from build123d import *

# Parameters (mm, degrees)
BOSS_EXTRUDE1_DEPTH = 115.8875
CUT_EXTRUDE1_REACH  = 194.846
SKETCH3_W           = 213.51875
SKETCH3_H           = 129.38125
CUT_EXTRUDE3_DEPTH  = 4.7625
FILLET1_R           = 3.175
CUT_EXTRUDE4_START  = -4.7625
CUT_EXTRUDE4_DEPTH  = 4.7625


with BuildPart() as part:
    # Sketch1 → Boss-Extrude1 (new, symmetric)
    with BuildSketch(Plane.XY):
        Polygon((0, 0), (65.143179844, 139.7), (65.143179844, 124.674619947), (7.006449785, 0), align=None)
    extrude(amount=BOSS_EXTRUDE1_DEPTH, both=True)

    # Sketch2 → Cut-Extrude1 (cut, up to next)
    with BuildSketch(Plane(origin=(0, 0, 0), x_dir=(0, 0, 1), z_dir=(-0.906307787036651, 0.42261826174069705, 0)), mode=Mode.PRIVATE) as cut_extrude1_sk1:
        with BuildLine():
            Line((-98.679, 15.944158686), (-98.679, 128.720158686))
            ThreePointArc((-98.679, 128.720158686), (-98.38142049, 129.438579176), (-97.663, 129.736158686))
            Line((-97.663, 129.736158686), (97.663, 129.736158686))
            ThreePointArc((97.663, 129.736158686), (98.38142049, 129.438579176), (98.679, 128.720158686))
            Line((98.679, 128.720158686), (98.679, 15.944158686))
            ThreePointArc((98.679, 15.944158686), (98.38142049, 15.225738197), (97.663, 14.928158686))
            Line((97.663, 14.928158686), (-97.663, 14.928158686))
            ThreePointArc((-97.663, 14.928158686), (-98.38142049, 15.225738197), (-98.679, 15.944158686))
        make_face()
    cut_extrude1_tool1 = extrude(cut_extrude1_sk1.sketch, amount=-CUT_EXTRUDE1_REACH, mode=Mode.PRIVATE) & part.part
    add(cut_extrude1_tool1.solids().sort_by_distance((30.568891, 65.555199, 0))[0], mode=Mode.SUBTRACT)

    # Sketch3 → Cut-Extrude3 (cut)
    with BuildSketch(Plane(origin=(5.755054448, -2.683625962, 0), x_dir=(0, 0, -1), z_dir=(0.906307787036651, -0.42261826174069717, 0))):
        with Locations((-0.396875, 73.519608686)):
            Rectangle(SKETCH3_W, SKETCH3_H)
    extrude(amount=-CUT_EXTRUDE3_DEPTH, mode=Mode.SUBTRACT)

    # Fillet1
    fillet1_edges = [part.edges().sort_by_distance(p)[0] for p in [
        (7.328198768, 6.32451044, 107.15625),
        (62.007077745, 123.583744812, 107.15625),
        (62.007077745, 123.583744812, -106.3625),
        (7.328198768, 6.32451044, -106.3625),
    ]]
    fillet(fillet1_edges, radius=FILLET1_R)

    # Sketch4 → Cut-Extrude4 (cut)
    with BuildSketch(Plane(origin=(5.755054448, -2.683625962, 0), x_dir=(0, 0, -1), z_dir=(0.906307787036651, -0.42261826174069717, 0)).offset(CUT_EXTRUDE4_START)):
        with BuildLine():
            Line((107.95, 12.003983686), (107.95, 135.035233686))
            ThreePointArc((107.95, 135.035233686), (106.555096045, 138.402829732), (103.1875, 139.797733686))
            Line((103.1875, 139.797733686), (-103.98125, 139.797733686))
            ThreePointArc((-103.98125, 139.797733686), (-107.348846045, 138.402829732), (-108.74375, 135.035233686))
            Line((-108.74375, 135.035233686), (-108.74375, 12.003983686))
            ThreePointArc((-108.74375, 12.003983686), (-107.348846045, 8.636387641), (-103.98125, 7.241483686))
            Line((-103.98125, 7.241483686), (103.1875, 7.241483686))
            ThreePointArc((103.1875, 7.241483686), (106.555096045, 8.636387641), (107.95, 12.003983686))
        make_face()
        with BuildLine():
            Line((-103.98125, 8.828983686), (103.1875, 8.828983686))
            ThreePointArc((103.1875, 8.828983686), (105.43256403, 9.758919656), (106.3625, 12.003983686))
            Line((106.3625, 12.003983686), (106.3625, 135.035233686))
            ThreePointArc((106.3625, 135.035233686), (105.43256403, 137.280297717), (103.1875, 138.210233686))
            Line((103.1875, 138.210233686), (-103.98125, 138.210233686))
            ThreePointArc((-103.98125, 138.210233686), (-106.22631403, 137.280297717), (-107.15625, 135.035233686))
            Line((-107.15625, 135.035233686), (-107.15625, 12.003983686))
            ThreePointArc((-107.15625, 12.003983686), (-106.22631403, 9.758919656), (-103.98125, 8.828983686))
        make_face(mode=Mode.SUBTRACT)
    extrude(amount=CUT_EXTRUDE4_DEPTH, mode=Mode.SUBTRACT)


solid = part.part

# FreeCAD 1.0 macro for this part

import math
import FreeCAD as App
import Part
import Sketcher
from FreeCAD import Vector
Q = App.Units.Quantity


def edges_at(feature, points):
    """Names of the edges that pass closest to the given points."""
    edges = feature.Shape.Edges
    near = lambda p: min(range(len(edges)), key=lambda i: edges[i].distToShape(Part.Vertex(*p))[0])
    return sorted({f"Edge{near(p) + 1}" for p in points})


def add_polygon(sketch, points):
    """Adds a closed chain of lines whose ends are joined by coincident constraints."""
    first, n = sketch.GeometryCount, len(points)
    for a, b in zip(points, points[1:] + points[:1]):
        sketch.addGeometry(Part.LineSegment(App.Vector(*a, 0), App.Vector(*b, 0)), False)
    for i in range(n):
        sketch.addConstraint(Sketcher.Constraint("Coincident", first + i, 2, first + (i + 1) % n, 1))

doc = App.newDocument("Part")
params = doc.addObject("Spreadsheet::Sheet", "Params")
for row, (alias, value) in enumerate([
    ("pad1_length", "9.125 in"),
    ("sketch2_radius", "0.04 in"),
    ("sketch2_width", "7.69 in"),
    ("sketch2_height", "4.44 in"),
    ("sketch3_width", "8.40625 in"),
    ("sketch3_height", "5.09375 in"),
    ("pocket2_length", "0.1875 in"),
    ("fillet_radius", "0.125 in"),
    ("sketch4_radius", "0.1875 in"),
    ("sketch4_radius2", "0.125 in"),
    ("sketch4_width", "8.15625 in"),
    ("sketch4_height", "4.84375 in"),
    ("pocket3_length", "0.1875 in"),
], start=1):
    params.set(f"A{row}", alias)
    params.set(f"B{row}", "=" + value)
    params.setAlias(f"B{row}", alias)

body = doc.addObject("PartDesign::Body", "Body")

# Sketch on XY plane
sketch1 = body.newObject("Sketcher::SketchObject", "Sketch")
sketch1.AttachmentSupport = (doc.getObject("XY_Plane"), [""])
sketch1.MapMode = "FlatFace"
add_polygon(sketch1, [(65.14318, 139.7), (0, 0), (7.00645, 0), (65.14318, 124.67462)])  # lines 0-3
sketch1.addConstraint(Sketcher.Constraint("Horizontal", 1))
sketch1.addConstraint(Sketcher.Constraint("Vertical", 3))
sketch1.addConstraint(Sketcher.Constraint("Coincident", 0, 2, -1, 1))
sketch1.addConstraint(Sketcher.Constraint("Parallel", 0, 2))
sketch1.addConstraint(Sketcher.Constraint("Angle", 0, Q("-115 deg")))
sketch1.addConstraint(Sketcher.Constraint("DistanceY", -1, 1, 3, 2, Q("5.5 in")))
sketch1.addConstraint(Sketcher.Constraint("DistanceX", 1, 1, 1, 2, Q("7.00645 mm")))
pad1 = body.newObject("PartDesign::Pad", "Pad")
pad1.Profile = sketch1
pad1.setExpression("Length", "Params.pad1_length")
pad1.Midplane = True

# Sketch on an angled plane
sketch2 = body.newObject("Sketcher::SketchObject", "Sketch001")
sketch2.Placement = App.Placement(Vector(0, 0, 0), App.Rotation(Vector(0, 0, 1), Vector(0.422618262, 0.906307787, 0), Vector(-0.906307787, 0.422618262, 0), "ZXY"))
sketch2.addGeometry(Part.LineSegment(Vector(-98.679, 128.720159, 0), Vector(-98.679, 15.944159, 0)), False)
sketch2.addGeometry(Part.ArcOfCircle(Part.Circle(Vector(-97.663, 15.944159, 0), Vector(0, 0, 1), 1.016), math.radians(-180), math.radians(-90)), False)
sketch2.addGeometry(Part.LineSegment(Vector(-97.663, 14.928159, 0), Vector(97.663, 14.928159, 0)), False)
sketch2.addGeometry(Part.ArcOfCircle(Part.Circle(Vector(97.663, 15.944159, 0), Vector(0, 0, 1), 1.016), math.radians(-90), math.radians(0)), False)
sketch2.addGeometry(Part.LineSegment(Vector(98.679, 15.944159, 0), Vector(98.679, 128.720159, 0)), False)
sketch2.addGeometry(Part.ArcOfCircle(Part.Circle(Vector(97.663, 128.720159, 0), Vector(0, 0, 1), 1.016), math.radians(0), math.radians(90)), False)
sketch2.addGeometry(Part.LineSegment(Vector(97.663, 129.736159, 0), Vector(-97.663, 129.736159, 0)), False)
sketch2.addGeometry(Part.ArcOfCircle(Part.Circle(Vector(-97.663, 128.720159, 0), Vector(0, 0, 1), 1.016), math.radians(90), math.radians(180)), False)
sketch2.addConstraint(Sketcher.Constraint("Tangent", 0, 2, 1, 1))
sketch2.addConstraint(Sketcher.Constraint("Tangent", 1, 2, 2, 1))
sketch2.addConstraint(Sketcher.Constraint("Tangent", 2, 2, 3, 1))
sketch2.addConstraint(Sketcher.Constraint("Tangent", 3, 2, 4, 1))
sketch2.addConstraint(Sketcher.Constraint("Tangent", 4, 2, 5, 1))
sketch2.addConstraint(Sketcher.Constraint("Tangent", 5, 2, 6, 1))
sketch2.addConstraint(Sketcher.Constraint("Tangent", 6, 2, 7, 1))
sketch2.addConstraint(Sketcher.Constraint("Tangent", 7, 2, 0, 1))
sketch2.addConstraint(Sketcher.Constraint("Vertical", 0))
sketch2.addConstraint(Sketcher.Constraint("Horizontal", 2))
sketch2.addConstraint(Sketcher.Constraint("Vertical", 4))
sketch2.addConstraint(Sketcher.Constraint("Horizontal", 6))
sketch2.addConstraint(Sketcher.Constraint("Equal", 1, 3))
sketch2.addConstraint(Sketcher.Constraint("Equal", 3, 5))
sketch2.addConstraint(Sketcher.Constraint("Equal", 5, 7))
sketch2.addConstraint(Sketcher.Constraint("Radius", 1, Q("0.04 in")))
sketch2.addConstraint(Sketcher.Constraint("DistanceX", 2, 1, 2, 2, Q("7.69 in")))
sketch2.addConstraint(Sketcher.Constraint("DistanceY", 0, 2, 0, 1, Q("4.44 in")))
sketch2.addConstraint(Sketcher.Constraint("DistanceX", 1, 3, -1, 1, Q("3.845 in")))
sketch2.addConstraint(Sketcher.Constraint("DistanceY", -1, 1, 1, 3, Q("15.944159 mm")))
sketch2.setExpression("Constraints[15]", "Params.sketch2_radius")
sketch2.setExpression("Constraints[16]", "Params.sketch2_width")
sketch2.setExpression("Constraints[17]", "Params.sketch2_height")
pocket1 = body.newObject("PartDesign::Pocket", "Pocket")
pocket1.Profile = sketch2
pocket1.Type = "UpToFirst"

# Sketch on an angled plane
sketch3 = body.newObject("Sketcher::SketchObject", "Sketch002")
sketch3.Placement = App.Placement(Vector(5.755054, -2.683626, 0), App.Rotation(Vector(0, 0, -1), Vector(0.422618262, 0.906307787, 0), Vector(0.906307787, -0.422618262, 0), "ZXY"))
add_polygon(sketch3, [(-107.15625, 138.210234), (-107.15625, 8.828984), (106.3625, 8.828984), (106.3625, 138.210234)])  # lines 0-3
sketch3.addConstraint(Sketcher.Constraint("Vertical", 0))
sketch3.addConstraint(Sketcher.Constraint("Horizontal", 1))
sketch3.addConstraint(Sketcher.Constraint("Vertical", 2))
sketch3.addConstraint(Sketcher.Constraint("Horizontal", 3))
sketch3.addConstraint(Sketcher.Constraint("DistanceX", 1, 1, 1, 2, Q("8.40625 in")))
sketch3.addConstraint(Sketcher.Constraint("DistanceY", 0, 2, 0, 1, Q("5.09375 in")))
sketch3.addConstraint(Sketcher.Constraint("DistanceX", 0, 2, -1, 1, Q("4.21875 in")))
sketch3.addConstraint(Sketcher.Constraint("DistanceY", -1, 1, 0, 2, Q("8.828984 mm")))
sketch3.setExpression("Constraints[8]", "Params.sketch3_width")
sketch3.setExpression("Constraints[9]", "Params.sketch3_height")
pocket2 = body.newObject("PartDesign::Pocket", "Pocket001")
pocket2.Profile = sketch3
pocket2.setExpression("Length", "Params.pocket2_length")
doc.recompute()

fillet = body.newObject("PartDesign::Fillet", "Fillet")
fillet.Base = (pocket2, edges_at(pocket2, [
    (7.328, 6.325, 107.156),
    (62.007, 123.584, 107.156),
    (62.007, 123.584, -106.362),
    (7.328, 6.325, -106.362),
]))
fillet.setExpression("Radius", "Params.fillet_radius")

# Sketch on an angled plane
sketch4 = body.newObject("Sketcher::SketchObject", "Sketch003")
sketch4.Placement = App.Placement(Vector(1.438764, -0.670906, 0), App.Rotation(Vector(0, 0, -1), Vector(0.422618262, 0.906307787, 0), Vector(0.906307787, -0.422618262, 0), "ZXY"))
sketch4.addGeometry(Part.LineSegment(Vector(107.95, 12.003984, 0), Vector(107.95, 135.035234, 0)), False)
sketch4.addGeometry(Part.ArcOfCircle(Part.Circle(Vector(103.1875, 135.035234, 0), Vector(0, 0, 1), 4.7625), math.radians(0), math.radians(90)), False)
sketch4.addGeometry(Part.LineSegment(Vector(103.1875, 139.797734, 0), Vector(-103.98125, 139.797734, 0)), False)
sketch4.addGeometry(Part.ArcOfCircle(Part.Circle(Vector(-103.98125, 135.035234, 0), Vector(0, 0, 1), 4.7625), math.radians(90), math.radians(180)), False)
sketch4.addGeometry(Part.LineSegment(Vector(-108.74375, 135.035234, 0), Vector(-108.74375, 12.003984, 0)), False)
sketch4.addGeometry(Part.ArcOfCircle(Part.Circle(Vector(-103.98125, 12.003984, 0), Vector(0, 0, 1), 4.7625), math.radians(-180), math.radians(-90)), False)
sketch4.addGeometry(Part.LineSegment(Vector(-103.98125, 7.241484, 0), Vector(103.1875, 7.241484, 0)), False)
sketch4.addGeometry(Part.ArcOfCircle(Part.Circle(Vector(103.1875, 12.003984, 0), Vector(0, 0, 1), 4.7625), math.radians(-90), math.radians(0)), False)
sketch4.addGeometry(Part.LineSegment(Vector(103.1875, 8.828984, 0), Vector(-103.98125, 8.828984, 0)), False)
sketch4.addGeometry(Part.ArcOfCircle(Part.Circle(Vector(-103.98125, 12.003984, 0), Vector(0, 0, 1), 3.175), math.radians(-180), math.radians(-90)), False)
sketch4.addGeometry(Part.LineSegment(Vector(-107.15625, 12.003984, 0), Vector(-107.15625, 135.035234, 0)), False)
sketch4.addGeometry(Part.ArcOfCircle(Part.Circle(Vector(-103.98125, 135.035234, 0), Vector(0, 0, 1), 3.175), math.radians(90), math.radians(180)), False)
sketch4.addGeometry(Part.LineSegment(Vector(-103.98125, 138.210234, 0), Vector(103.1875, 138.210234, 0)), False)
sketch4.addGeometry(Part.ArcOfCircle(Part.Circle(Vector(103.1875, 135.035234, 0), Vector(0, 0, 1), 3.175), math.radians(0), math.radians(90)), False)
sketch4.addGeometry(Part.LineSegment(Vector(106.3625, 135.035234, 0), Vector(106.3625, 12.003984, 0)), False)
sketch4.addGeometry(Part.ArcOfCircle(Part.Circle(Vector(103.1875, 12.003984, 0), Vector(0, 0, 1), 3.175), math.radians(-90), math.radians(0)), False)
sketch4.addConstraint(Sketcher.Constraint("Tangent", 0, 2, 1, 1))
sketch4.addConstraint(Sketcher.Constraint("Tangent", 1, 2, 2, 1))
sketch4.addConstraint(Sketcher.Constraint("Tangent", 2, 2, 3, 1))
sketch4.addConstraint(Sketcher.Constraint("Tangent", 3, 2, 4, 1))
sketch4.addConstraint(Sketcher.Constraint("Tangent", 4, 2, 5, 1))
sketch4.addConstraint(Sketcher.Constraint("Tangent", 5, 2, 6, 1))
sketch4.addConstraint(Sketcher.Constraint("Tangent", 6, 2, 7, 1))
sketch4.addConstraint(Sketcher.Constraint("Tangent", 7, 2, 0, 1))
sketch4.addConstraint(Sketcher.Constraint("Tangent", 8, 2, 9, 2))
sketch4.addConstraint(Sketcher.Constraint("Tangent", 9, 1, 10, 1))
sketch4.addConstraint(Sketcher.Constraint("Tangent", 10, 2, 11, 2))
sketch4.addConstraint(Sketcher.Constraint("Tangent", 11, 1, 12, 1))
sketch4.addConstraint(Sketcher.Constraint("Tangent", 12, 2, 13, 2))
sketch4.addConstraint(Sketcher.Constraint("Tangent", 13, 1, 14, 1))
sketch4.addConstraint(Sketcher.Constraint("Tangent", 14, 2, 15, 2))
sketch4.addConstraint(Sketcher.Constraint("Tangent", 15, 1, 8, 1))
sketch4.addConstraint(Sketcher.Constraint("Vertical", 0))
sketch4.addConstraint(Sketcher.Constraint("Horizontal", 2))
sketch4.addConstraint(Sketcher.Constraint("Vertical", 4))
sketch4.addConstraint(Sketcher.Constraint("Horizontal", 6))
sketch4.addConstraint(Sketcher.Constraint("Horizontal", 8))
sketch4.addConstraint(Sketcher.Constraint("Vertical", 10))
sketch4.addConstraint(Sketcher.Constraint("Horizontal", 12))
sketch4.addConstraint(Sketcher.Constraint("Vertical", 14))
sketch4.addConstraint(Sketcher.Constraint("Coincident", 9, 3, 5, 3))
sketch4.addConstraint(Sketcher.Constraint("Coincident", 11, 3, 3, 3))
sketch4.addConstraint(Sketcher.Constraint("Coincident", 13, 3, 1, 3))
sketch4.addConstraint(Sketcher.Constraint("Equal", 1, 3))
sketch4.addConstraint(Sketcher.Constraint("Equal", 3, 5))
sketch4.addConstraint(Sketcher.Constraint("Equal", 5, 7))
sketch4.addConstraint(Sketcher.Constraint("Equal", 13, 15))
sketch4.addConstraint(Sketcher.Constraint("Radius", 1, Q("0.1875 in")))
sketch4.addConstraint(Sketcher.Constraint("Radius", 9, Q("0.125 in")))
sketch4.addConstraint(Sketcher.Constraint("DistanceX", 2, 2, 2, 1, Q("8.15625 in")))
sketch4.addConstraint(Sketcher.Constraint("DistanceY", 0, 1, 0, 2, Q("4.84375 in")))
sketch4.addConstraint(Sketcher.Constraint("DistanceX", -1, 1, 0, 2, Q("4.25 in")))
sketch4.addConstraint(Sketcher.Constraint("DistanceY", -1, 1, 1, 3, Q("135.035234 mm")))
sketch4.setExpression("Constraints[31]", "Params.sketch4_radius")
sketch4.setExpression("Constraints[32]", "Params.sketch4_radius2")
sketch4.setExpression("Constraints[33]", "Params.sketch4_width")
sketch4.setExpression("Constraints[34]", "Params.sketch4_height")
pocket3 = body.newObject("PartDesign::Pocket", "Pocket002")
pocket3.Profile = sketch4
pocket3.setExpression("Length", "Params.pocket3_length")
pocket3.Reversed = True

doc.recompute()
